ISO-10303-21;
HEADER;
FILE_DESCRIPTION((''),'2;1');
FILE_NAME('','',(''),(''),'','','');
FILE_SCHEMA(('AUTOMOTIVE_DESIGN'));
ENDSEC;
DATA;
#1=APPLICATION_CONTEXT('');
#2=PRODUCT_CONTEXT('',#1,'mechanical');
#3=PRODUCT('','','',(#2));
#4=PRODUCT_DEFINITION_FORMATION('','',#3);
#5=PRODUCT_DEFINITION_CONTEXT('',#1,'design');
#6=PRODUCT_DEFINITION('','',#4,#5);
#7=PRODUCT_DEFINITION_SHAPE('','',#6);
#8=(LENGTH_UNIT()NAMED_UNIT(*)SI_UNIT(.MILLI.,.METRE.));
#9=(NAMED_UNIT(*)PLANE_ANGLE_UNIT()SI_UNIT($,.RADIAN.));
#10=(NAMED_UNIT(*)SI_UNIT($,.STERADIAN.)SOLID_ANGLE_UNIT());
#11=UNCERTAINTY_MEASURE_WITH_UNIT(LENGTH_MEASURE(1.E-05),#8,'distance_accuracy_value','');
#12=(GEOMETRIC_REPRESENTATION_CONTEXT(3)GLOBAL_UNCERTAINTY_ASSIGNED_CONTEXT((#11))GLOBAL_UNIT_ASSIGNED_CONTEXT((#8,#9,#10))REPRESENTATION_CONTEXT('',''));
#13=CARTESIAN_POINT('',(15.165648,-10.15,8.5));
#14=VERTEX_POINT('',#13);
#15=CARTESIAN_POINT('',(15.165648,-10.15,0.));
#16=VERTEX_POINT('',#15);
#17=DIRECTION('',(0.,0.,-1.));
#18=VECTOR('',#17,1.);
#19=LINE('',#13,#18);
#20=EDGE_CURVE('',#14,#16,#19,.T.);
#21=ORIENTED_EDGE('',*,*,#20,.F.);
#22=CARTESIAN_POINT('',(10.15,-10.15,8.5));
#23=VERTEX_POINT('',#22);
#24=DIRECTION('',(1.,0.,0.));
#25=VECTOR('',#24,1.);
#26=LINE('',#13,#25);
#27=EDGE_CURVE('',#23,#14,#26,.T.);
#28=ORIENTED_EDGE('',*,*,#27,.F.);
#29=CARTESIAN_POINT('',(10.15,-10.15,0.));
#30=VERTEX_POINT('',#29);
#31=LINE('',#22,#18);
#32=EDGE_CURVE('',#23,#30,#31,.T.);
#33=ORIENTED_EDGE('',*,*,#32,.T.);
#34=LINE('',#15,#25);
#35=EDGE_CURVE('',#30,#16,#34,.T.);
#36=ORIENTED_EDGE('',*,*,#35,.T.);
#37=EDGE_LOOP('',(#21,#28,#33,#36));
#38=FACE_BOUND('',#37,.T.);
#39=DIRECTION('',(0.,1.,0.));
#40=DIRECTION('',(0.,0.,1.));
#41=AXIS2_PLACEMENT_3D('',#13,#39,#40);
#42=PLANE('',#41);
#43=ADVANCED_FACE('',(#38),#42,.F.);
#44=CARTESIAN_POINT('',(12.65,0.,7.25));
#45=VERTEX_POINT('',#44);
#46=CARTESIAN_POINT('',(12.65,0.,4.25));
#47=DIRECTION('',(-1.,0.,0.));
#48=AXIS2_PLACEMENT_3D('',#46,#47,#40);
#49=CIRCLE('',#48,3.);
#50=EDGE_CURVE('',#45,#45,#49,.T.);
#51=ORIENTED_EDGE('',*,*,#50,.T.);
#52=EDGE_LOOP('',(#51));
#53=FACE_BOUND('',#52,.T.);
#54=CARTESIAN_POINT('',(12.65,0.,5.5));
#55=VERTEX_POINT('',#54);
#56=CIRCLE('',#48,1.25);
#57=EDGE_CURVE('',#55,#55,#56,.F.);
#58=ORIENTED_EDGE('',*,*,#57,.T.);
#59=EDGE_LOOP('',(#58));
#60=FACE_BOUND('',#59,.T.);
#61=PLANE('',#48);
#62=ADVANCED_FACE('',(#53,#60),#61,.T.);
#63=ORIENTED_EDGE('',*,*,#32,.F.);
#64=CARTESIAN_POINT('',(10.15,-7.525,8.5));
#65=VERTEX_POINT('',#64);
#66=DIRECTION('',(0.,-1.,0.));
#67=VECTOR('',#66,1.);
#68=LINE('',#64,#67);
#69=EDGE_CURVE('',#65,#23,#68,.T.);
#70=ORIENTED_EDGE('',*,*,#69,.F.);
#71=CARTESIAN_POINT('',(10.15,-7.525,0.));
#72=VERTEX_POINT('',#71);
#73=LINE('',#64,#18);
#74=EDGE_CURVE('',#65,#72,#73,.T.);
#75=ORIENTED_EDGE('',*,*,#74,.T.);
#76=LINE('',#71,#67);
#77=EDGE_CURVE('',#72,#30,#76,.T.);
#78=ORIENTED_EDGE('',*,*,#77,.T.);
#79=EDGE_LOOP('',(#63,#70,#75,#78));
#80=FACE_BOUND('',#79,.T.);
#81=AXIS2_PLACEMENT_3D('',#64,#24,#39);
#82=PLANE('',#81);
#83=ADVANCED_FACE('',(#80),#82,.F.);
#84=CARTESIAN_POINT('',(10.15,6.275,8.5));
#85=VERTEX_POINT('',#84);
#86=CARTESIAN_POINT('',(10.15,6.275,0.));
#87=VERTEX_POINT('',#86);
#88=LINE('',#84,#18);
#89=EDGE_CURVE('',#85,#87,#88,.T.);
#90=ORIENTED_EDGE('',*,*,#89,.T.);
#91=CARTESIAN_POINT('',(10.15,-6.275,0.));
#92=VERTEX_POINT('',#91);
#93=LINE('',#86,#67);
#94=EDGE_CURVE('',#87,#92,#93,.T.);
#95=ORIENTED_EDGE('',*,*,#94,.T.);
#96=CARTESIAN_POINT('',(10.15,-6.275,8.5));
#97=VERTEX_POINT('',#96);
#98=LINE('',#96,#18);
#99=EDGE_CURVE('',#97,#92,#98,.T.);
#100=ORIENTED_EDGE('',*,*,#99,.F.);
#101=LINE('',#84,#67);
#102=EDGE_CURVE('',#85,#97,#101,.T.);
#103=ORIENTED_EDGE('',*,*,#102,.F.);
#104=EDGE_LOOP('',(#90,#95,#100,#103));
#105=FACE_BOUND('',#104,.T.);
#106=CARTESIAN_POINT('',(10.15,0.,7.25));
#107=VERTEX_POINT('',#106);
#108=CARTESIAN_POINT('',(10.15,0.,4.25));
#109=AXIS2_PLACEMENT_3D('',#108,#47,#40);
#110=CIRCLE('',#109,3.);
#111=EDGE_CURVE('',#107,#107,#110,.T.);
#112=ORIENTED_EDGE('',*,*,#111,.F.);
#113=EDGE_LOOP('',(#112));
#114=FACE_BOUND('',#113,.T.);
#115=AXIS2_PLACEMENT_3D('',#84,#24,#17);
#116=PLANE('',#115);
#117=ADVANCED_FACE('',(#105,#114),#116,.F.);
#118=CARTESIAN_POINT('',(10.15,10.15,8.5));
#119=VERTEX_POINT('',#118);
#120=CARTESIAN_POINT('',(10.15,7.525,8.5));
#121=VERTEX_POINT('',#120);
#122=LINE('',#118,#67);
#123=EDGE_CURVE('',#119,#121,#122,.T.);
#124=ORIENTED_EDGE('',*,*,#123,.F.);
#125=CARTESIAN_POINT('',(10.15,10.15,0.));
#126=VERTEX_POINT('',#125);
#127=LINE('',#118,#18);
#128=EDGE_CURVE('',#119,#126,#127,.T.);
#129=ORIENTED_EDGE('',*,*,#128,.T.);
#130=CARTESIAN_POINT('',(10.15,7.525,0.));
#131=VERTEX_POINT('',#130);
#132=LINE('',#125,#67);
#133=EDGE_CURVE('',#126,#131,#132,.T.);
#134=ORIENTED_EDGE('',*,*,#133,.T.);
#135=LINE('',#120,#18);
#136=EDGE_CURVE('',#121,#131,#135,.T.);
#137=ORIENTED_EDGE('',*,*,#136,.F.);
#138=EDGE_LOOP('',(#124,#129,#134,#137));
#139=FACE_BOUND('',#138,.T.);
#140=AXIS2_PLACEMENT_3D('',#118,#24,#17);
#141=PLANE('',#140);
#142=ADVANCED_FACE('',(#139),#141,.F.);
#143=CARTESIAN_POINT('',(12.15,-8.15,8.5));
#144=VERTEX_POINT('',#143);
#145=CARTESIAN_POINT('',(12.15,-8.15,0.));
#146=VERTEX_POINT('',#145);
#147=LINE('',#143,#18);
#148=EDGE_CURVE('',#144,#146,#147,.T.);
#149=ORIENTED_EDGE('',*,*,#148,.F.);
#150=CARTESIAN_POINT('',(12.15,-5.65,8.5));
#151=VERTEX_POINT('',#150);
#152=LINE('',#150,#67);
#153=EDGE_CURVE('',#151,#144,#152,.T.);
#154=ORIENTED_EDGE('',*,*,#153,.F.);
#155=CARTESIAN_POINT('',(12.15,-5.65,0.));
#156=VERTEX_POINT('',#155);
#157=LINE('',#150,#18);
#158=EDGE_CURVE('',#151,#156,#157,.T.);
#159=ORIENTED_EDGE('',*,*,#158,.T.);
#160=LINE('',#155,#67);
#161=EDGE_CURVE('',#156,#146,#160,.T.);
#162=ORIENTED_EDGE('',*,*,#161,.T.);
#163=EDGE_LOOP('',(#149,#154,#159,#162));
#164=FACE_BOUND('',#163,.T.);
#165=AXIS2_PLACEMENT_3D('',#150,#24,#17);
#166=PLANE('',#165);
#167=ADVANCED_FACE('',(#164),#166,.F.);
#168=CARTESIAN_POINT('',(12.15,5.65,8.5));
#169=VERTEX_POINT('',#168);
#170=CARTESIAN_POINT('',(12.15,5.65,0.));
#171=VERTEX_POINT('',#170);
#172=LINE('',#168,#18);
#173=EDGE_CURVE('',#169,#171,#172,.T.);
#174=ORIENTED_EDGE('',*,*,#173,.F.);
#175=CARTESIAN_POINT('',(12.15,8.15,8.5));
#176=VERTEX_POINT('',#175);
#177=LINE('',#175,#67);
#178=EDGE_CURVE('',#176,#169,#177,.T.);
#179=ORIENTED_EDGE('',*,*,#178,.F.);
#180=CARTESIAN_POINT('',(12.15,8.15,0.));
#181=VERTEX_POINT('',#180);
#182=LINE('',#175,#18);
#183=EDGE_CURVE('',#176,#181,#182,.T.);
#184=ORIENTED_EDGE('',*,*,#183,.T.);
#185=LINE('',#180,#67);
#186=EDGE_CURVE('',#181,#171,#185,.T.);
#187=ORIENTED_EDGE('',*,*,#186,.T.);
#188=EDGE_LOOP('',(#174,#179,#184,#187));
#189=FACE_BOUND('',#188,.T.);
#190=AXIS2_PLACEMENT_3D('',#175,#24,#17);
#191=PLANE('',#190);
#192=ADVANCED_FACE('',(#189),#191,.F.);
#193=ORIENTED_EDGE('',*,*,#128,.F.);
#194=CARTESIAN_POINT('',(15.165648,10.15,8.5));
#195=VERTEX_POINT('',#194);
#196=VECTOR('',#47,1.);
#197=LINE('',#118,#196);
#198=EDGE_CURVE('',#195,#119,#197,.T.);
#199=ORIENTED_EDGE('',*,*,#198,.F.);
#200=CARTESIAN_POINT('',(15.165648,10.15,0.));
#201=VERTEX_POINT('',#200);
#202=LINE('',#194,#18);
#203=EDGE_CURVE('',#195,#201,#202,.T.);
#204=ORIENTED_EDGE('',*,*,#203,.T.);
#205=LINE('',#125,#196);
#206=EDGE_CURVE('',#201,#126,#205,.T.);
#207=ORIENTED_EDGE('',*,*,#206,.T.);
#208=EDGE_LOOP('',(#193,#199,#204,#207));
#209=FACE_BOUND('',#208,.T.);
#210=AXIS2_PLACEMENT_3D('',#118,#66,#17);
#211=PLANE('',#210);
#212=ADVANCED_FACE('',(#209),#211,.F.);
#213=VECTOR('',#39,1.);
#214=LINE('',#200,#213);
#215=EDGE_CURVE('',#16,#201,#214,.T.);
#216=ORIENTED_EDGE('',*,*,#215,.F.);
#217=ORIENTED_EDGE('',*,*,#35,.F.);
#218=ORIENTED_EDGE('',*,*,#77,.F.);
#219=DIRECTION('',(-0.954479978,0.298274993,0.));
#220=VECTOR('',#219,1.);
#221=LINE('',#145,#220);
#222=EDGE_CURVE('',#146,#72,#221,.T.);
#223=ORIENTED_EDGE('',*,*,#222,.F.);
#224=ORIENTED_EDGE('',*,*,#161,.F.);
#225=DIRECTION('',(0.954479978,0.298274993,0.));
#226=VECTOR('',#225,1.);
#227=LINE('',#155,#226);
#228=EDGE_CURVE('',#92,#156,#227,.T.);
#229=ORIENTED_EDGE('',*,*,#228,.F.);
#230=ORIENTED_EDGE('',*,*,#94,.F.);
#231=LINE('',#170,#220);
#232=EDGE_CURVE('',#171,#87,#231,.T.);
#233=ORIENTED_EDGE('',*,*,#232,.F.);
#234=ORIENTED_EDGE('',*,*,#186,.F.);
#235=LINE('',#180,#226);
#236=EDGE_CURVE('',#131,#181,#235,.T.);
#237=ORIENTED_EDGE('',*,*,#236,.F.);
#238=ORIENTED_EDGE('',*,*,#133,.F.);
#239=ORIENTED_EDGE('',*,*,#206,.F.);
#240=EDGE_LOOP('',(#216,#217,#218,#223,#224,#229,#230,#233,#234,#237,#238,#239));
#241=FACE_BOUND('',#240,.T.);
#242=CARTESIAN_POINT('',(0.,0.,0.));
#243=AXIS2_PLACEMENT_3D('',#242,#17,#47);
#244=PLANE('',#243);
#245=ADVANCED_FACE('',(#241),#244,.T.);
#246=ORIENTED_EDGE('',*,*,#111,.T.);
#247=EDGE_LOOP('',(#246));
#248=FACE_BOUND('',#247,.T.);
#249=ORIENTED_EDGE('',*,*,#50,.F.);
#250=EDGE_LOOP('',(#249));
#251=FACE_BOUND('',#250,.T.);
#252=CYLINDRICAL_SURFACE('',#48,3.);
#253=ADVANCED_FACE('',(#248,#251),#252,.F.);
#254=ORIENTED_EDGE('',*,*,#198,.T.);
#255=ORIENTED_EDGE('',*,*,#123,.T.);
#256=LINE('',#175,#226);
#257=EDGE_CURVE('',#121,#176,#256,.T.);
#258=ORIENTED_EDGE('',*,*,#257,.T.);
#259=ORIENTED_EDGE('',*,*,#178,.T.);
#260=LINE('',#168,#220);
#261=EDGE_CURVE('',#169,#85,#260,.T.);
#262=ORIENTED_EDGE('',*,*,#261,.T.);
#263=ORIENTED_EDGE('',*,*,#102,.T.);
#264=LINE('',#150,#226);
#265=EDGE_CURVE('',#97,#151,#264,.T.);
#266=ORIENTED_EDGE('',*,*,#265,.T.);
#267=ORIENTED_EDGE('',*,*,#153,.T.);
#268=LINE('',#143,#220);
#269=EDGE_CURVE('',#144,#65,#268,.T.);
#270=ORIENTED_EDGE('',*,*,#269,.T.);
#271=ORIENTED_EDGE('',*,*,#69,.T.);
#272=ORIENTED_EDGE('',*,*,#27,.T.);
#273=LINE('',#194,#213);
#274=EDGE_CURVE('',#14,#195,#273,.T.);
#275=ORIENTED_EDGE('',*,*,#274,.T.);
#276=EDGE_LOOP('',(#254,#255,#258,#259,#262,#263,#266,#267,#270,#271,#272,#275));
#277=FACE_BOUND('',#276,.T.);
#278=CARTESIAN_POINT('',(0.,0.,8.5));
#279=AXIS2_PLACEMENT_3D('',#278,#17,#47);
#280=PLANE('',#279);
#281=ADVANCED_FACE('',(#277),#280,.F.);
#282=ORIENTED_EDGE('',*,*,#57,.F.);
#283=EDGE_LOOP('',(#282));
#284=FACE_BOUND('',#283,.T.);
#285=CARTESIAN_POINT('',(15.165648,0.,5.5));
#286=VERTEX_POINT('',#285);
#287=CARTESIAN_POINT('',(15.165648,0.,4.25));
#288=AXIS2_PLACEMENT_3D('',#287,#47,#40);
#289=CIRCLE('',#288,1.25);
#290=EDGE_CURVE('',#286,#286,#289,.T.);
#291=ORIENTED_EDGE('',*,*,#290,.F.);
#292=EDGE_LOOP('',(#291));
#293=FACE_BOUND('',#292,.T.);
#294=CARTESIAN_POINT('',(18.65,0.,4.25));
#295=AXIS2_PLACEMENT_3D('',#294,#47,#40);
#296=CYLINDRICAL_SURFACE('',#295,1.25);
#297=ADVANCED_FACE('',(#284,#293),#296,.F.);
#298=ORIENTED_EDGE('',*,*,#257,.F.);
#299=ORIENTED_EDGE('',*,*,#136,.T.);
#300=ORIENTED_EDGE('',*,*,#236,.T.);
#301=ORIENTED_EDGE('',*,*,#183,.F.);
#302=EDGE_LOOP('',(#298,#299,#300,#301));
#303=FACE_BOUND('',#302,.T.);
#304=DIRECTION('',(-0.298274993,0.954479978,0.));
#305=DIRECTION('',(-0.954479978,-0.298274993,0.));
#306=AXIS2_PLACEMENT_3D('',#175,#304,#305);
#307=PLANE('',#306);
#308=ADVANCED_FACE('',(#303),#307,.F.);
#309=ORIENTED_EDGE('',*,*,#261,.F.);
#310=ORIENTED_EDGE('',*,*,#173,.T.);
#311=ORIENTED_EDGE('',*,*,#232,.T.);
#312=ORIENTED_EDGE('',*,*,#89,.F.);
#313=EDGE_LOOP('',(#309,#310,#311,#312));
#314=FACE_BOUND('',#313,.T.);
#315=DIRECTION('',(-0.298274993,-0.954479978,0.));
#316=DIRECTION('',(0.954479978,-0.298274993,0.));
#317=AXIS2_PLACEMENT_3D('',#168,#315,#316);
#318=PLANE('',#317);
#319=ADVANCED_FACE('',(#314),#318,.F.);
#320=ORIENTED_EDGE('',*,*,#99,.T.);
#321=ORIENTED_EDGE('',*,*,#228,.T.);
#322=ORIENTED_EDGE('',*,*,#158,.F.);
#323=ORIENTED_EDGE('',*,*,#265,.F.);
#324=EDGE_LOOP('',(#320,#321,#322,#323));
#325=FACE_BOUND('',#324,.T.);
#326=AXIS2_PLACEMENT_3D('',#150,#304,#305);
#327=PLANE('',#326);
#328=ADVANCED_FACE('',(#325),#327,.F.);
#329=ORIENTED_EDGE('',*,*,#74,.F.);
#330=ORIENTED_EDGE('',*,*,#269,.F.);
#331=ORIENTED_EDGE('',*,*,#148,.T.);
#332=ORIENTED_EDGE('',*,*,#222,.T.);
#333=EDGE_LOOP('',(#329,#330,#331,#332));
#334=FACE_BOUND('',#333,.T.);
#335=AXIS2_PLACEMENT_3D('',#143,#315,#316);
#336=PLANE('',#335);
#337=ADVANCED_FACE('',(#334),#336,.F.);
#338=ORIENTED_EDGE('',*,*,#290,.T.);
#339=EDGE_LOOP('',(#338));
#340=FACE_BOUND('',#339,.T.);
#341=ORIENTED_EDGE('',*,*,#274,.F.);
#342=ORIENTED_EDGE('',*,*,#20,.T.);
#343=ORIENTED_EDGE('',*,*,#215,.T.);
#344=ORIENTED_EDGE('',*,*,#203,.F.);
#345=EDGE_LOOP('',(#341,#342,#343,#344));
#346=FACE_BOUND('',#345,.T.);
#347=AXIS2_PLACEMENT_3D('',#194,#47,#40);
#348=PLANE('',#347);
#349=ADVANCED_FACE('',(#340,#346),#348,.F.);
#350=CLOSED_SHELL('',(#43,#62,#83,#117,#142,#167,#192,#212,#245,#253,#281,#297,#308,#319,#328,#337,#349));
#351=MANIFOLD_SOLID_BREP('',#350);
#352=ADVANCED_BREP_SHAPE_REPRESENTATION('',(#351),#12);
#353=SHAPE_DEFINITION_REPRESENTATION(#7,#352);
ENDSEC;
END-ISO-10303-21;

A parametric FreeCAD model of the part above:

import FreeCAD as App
import Part
import Sketcher

V = App.Vector
Q = App.Units.Quantity

doc = App.newDocument("Part")
body = doc.addObject("PartDesign::Body", "Body")

sketch1 = body.newObject("Sketcher::SketchObject", "Sketch")
sketch1.AttachmentSupport = (doc.getObject("XY_Plane"), [""])
sketch1.MapMode = "FlatFace"
sketch1.addGeometry([
    Part.LineSegment(V(12.2, 8.2, 0), V(12.2, 5.7, 0)),
    Part.LineSegment(V(12.2, 5.7, 0), V(10.2, 6.3, 0)),
    Part.LineSegment(V(10.2, 6.3, 0), V(10.2, -6.3, 0)),
    Part.LineSegment(V(10.2, -6.3, 0), V(12.2, -5.7, 0)),
    Part.LineSegment(V(12.2, -5.7, 0), V(12.2, -8.2, 0)),
    Part.LineSegment(V(12.2, -8.2, 0), V(10.2, -7.5, 0)),
    Part.LineSegment(V(10.2, -7.5, 0), V(10.2, -10.2, 0)),
    Part.LineSegment(V(10.2, -10.2, 0), V(15.2, -10.2, 0)),
    Part.LineSegment(V(15.2, -10.2, 0), V(15.2, 10.2, 0)),
    Part.LineSegment(V(15.2, 10.2, 0), V(10.2, 10.2, 0)),
    Part.LineSegment(V(10.2, 10.2, 0), V(10.2, 7.5, 0)),
    Part.LineSegment(V(10.2, 7.5, 0), V(12.2, 8.2, 0)),
], False)
sketch1.addConstraint([
    Sketcher.Constraint("Coincident", 0, 2, 1, 1),
    Sketcher.Constraint("Coincident", 1, 2, 2, 1),
    Sketcher.Constraint("Coincident", 2, 2, 3, 1),
    Sketcher.Constraint("Coincident", 3, 2, 4, 1),
    Sketcher.Constraint("Coincident", 4, 2, 5, 1),
    Sketcher.Constraint("Coincident", 5, 2, 6, 1),
    Sketcher.Constraint("Coincident", 6, 2, 7, 1),
    Sketcher.Constraint("Coincident", 7, 2, 8, 1),
    Sketcher.Constraint("Coincident", 8, 2, 9, 1),
    Sketcher.Constraint("Coincident", 9, 2, 10, 1),
    Sketcher.Constraint("Coincident", 10, 2, 11, 1),
    Sketcher.Constraint("Coincident", 11, 2, 0, 1),
    Sketcher.Constraint("Vertical", 0),
    Sketcher.Constraint("Vertical", 2),
    Sketcher.Constraint("Vertical", 4),
    Sketcher.Constraint("Vertical", 6),
    Sketcher.Constraint("Horizontal", 7),
    Sketcher.Constraint("Vertical", 8),
    Sketcher.Constraint("Horizontal", 9),
    Sketcher.Constraint("Vertical", 10),
    Sketcher.Constraint("Symmetric", 0, 2, 3, 2, -1),
    Sketcher.Constraint("Symmetric", 6, 2, 9, 2, -1),
    Sketcher.Constraint("Parallel", 1, 5),
    Sketcher.Constraint("Parallel", 3, 11),
    Sketcher.Constraint("Vertical", 2, 2, 5, 2),
    Sketcher.Constraint("Equal", 0, 4),
    Sketcher.Constraint("Equal", 6, 10),
    Sketcher.Constraint("DistanceY", 0, 2, 0, 1, Q("2.5 mm")),
    Sketcher.Constraint("DistanceY", 8, 1, 8, 2, Q("20.3 mm")),
    Sketcher.Constraint("DistanceX", 1, 2, 0, 2, Q("2 mm")),
    Sketcher.Constraint("DistanceY", 6, 2, 4, 2, Q("2 mm")),
    Sketcher.Constraint("DistanceY", 2, 2, 2, 1, Q("12.55 mm")),
    Sketcher.Constraint("DistanceX", -1, 1, 0, 2, Q("12.15 mm")),
    Sketcher.Constraint("DistanceX", 7, 1, 7, 2, Q("5.015648 mm")),
])
pad1 = body.newObject("PartDesign::Pad", "Pad")
pad1.Profile = sketch1
pad1.Length = 8.5

sketch2 = body.newObject("Sketcher::SketchObject", "Sketch001")
sketch2.AttachmentSupport = (doc.getObject("YZ_Plane"), [""])
sketch2.MapMode = "FlatFace"
sketch2.AttachmentOffset = App.Placement(V(0, 0, 10.15), App.Rotation())
sketch2.addGeometry(Part.Circle(V(0, 4.2, 0), V(0, 0, 1), 1.2), False)
sketch2.addConstraint([
    Sketcher.Constraint("PointOnObject", 0, 3, -2),
    Sketcher.Constraint("Diameter", 0, Q("2.5 mm")),
    Sketcher.Constraint("DistanceY", -1, 1, 0, 3, Q("4.25 mm")),
])
pocket1 = body.newObject("PartDesign::Pocket", "Pocket")
pocket1.Profile = sketch2
pocket1.Length = 8.5
pocket1.Reversed = True

sketch3 = body.newObject("Sketcher::SketchObject", "Sketch002")
sketch3.AttachmentSupport = (doc.getObject("YZ_Plane"), [""])
sketch3.MapMode = "FlatFace"
sketch3.AttachmentOffset = App.Placement(V(0, 0, 10.15), App.Rotation())
sketch3.addGeometry(Part.Circle(V(0, 4.2, 0), V(0, 0, 1), 3), False)
sketch3.addConstraint([
    Sketcher.Constraint("PointOnObject", 0, 3, -2),
    Sketcher.Constraint("Diameter", 0, Q("6 mm")),
    Sketcher.Constraint("DistanceY", -1, 1, 0, 3, Q("4.25 mm")),
])
pocket2 = body.newObject("PartDesign::Pocket", "Pocket001")
pocket2.Profile = sketch3
pocket2.Length = 2.5
pocket2.Reversed = True

doc.recompute()
